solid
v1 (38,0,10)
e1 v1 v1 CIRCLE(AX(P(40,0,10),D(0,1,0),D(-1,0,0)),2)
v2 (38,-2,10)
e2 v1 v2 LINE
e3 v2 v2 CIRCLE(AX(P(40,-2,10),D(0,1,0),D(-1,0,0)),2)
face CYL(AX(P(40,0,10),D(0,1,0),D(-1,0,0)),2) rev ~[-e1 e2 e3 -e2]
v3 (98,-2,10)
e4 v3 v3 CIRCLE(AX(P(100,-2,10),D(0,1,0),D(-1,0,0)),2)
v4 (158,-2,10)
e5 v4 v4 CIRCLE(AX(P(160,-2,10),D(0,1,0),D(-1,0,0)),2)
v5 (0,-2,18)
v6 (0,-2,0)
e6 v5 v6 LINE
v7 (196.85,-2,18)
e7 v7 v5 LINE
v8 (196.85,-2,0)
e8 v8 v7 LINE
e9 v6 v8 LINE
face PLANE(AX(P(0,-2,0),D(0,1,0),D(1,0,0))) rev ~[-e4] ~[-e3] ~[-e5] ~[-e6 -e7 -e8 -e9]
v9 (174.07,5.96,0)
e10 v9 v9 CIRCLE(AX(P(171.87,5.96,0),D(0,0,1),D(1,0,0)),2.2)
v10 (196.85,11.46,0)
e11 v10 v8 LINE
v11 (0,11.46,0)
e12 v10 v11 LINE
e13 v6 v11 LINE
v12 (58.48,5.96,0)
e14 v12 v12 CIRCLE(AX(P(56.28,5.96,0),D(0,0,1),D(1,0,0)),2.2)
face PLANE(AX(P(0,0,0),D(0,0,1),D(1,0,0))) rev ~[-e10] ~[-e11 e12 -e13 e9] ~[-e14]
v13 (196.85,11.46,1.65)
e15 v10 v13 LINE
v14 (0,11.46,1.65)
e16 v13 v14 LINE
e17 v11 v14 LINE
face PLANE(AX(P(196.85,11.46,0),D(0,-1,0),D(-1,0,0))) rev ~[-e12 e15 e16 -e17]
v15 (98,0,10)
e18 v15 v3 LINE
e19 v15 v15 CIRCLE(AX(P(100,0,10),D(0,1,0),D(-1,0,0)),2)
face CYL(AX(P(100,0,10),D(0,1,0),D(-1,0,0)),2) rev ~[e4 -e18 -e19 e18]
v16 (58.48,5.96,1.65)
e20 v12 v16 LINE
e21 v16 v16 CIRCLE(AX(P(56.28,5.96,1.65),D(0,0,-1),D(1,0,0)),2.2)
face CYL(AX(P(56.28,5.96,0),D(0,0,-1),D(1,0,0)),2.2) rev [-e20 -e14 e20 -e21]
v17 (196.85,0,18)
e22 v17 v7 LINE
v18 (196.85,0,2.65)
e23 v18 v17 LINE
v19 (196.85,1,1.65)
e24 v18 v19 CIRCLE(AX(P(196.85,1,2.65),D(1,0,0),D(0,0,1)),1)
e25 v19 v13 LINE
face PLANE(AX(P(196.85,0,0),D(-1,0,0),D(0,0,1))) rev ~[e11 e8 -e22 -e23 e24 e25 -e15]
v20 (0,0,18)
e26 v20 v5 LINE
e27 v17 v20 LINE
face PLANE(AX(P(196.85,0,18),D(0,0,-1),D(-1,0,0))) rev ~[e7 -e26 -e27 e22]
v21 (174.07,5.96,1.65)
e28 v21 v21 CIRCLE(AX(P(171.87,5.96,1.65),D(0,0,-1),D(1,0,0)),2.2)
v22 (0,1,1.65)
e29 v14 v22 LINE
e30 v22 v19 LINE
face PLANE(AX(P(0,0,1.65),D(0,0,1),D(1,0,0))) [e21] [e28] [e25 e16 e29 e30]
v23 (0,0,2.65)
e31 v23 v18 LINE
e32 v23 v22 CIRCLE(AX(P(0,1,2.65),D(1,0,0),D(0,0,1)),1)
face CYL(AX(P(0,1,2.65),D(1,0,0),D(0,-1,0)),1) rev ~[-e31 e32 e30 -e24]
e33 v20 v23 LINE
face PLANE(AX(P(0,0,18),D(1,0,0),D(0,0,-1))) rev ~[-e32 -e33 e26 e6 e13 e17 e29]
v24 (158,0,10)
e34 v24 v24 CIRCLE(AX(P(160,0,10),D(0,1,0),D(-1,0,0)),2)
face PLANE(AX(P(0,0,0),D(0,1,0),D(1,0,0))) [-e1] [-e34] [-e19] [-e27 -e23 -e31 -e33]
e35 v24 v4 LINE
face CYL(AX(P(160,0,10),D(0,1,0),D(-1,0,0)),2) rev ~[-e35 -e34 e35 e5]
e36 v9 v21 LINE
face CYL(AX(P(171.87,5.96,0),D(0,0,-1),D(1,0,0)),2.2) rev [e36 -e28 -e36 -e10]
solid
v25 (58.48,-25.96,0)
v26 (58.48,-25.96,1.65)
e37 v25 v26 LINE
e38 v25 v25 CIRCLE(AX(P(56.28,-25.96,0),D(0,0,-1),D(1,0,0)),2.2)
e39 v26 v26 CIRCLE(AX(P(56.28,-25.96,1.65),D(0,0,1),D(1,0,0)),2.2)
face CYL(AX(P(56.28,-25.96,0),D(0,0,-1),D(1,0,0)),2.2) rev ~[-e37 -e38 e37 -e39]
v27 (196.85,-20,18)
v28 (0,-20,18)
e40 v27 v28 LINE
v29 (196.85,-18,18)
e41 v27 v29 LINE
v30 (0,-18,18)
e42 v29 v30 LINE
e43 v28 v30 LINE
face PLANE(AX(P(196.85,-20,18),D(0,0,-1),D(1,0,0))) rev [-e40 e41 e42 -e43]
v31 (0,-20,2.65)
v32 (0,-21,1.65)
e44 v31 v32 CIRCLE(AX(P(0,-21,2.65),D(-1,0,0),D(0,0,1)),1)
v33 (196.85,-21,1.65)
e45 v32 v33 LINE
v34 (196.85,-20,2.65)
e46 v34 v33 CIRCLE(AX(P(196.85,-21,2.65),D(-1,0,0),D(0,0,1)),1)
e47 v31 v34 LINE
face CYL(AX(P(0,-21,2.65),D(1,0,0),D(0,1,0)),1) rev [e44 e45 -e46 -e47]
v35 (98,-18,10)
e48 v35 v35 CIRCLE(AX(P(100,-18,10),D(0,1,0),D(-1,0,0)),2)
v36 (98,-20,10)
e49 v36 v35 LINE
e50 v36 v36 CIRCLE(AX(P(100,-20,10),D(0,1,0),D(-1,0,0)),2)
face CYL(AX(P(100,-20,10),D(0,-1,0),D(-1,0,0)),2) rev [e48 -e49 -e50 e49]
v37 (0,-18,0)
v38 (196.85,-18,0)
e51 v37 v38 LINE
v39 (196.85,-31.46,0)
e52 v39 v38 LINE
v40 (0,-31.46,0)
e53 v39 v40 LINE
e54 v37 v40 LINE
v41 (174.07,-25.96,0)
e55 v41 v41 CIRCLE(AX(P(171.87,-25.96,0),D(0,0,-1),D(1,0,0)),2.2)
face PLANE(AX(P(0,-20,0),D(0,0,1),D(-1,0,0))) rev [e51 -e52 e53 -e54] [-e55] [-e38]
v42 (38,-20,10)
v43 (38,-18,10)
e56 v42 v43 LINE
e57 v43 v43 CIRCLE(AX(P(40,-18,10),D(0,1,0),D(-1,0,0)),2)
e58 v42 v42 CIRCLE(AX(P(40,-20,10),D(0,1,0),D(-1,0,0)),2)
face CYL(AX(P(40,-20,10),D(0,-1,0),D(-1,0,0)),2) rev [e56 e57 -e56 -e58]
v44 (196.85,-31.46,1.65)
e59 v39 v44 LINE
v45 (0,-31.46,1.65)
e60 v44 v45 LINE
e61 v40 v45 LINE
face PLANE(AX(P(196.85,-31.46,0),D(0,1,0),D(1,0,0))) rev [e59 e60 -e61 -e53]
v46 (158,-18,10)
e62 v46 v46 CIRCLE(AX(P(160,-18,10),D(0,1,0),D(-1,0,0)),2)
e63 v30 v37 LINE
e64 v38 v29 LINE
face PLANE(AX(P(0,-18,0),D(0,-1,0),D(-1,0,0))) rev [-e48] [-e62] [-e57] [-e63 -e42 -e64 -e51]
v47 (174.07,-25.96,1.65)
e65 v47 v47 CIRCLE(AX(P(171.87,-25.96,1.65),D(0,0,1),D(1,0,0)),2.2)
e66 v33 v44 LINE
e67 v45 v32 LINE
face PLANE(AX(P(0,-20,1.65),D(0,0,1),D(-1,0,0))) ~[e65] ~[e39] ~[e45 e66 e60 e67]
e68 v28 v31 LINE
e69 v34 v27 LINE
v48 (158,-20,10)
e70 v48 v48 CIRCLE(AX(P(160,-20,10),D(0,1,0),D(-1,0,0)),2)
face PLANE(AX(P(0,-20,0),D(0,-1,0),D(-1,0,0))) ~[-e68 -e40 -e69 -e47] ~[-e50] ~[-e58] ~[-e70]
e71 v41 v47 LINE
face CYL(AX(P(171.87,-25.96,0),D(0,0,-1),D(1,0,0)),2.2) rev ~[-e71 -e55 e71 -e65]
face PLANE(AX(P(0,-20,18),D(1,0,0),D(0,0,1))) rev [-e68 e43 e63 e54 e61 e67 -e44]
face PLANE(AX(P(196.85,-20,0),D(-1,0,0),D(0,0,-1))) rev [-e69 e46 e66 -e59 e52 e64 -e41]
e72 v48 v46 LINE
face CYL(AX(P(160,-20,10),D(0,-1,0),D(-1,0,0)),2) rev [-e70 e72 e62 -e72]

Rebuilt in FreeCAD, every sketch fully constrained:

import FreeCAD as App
import Part
import Sketcher
from FreeCAD import Vector
Q = App.Units.Quantity


def edges_at(feature, points):
    """Names of the edges that pass closest to the given points."""
    edges = feature.Shape.Edges
    near = lambda p: min(range(len(edges)), key=lambda i: edges[i].distToShape(Part.Vertex(*p))[0])
    return sorted({f"Edge{near(p) + 1}" for p in points})


def add_polygon(sketch, points):
    """Adds a closed chain of lines whose ends are joined by coincident constraints."""
    first, n = sketch.GeometryCount, len(points)
    for a, b in zip(points, points[1:] + points[:1]):
        sketch.addGeometry(Part.LineSegment(App.Vector(*a, 0), App.Vector(*b, 0)), False)
    for i in range(n):
        sketch.addConstraint(Sketcher.Constraint("Coincident", first + i, 2, first + (i + 1) % n, 1))

doc = App.newDocument("Part")
body = doc.addObject("PartDesign::Body", "Body")
body.AllowCompound = True

# Sketch on XY plane
sketch1 = body.newObject("Sketcher::SketchObject", "Sketch")
sketch1.AttachmentSupport = (doc.getObject("XY_Plane"), [""])
sketch1.MapMode = "FlatFace"
add_polygon(sketch1, [(0, 11), (0, 0), (197, 0), (197, 11)])  # lines 0-3
sketch1.addConstraint([
    Sketcher.Constraint("Vertical", 0),
    Sketcher.Constraint("Horizontal", 1),
    Sketcher.Constraint("Vertical", 2),
    Sketcher.Constraint("Horizontal", 3),
    Sketcher.Constraint("Coincident", 0, 2, -1, 1),
    Sketcher.Constraint("DistanceX", 1, 1, 1, 2, Q("196.85 mm")),
    Sketcher.Constraint("DistanceY", 0, 2, 0, 1, Q("11.46 mm")),
])
pad1 = body.newObject("PartDesign::Pad", "Pad")
pad1.Profile = sketch1
pad1.Length = 1.65

# Sketch on XY plane
sketch2 = body.newObject("Sketcher::SketchObject", "Sketch001")
sketch2.AttachmentSupport = (doc.getObject("XY_Plane"), [""])
sketch2.MapMode = "FlatFace"
sketch2.addGeometry([
    Part.Circle(Vector(56.3, 6, 0), Vector(0, 0, 1), 2.2),
    Part.Circle(Vector(171.9, 6, 0), Vector(0, 0, 1), 2.2),
], False)
sketch2.addConstraint([
    Sketcher.Constraint("Equal", 0, 1),
    Sketcher.Constraint("Horizontal", 0, 3, 1, 3),
    Sketcher.Constraint("Diameter", 0, Q("4.4 mm")),
    Sketcher.Constraint("DistanceX", -1, 1, 0, 3, Q("56.28 mm")),
    Sketcher.Constraint("DistanceY", -1, 1, 0, 3, Q("5.96 mm")),
    Sketcher.Constraint("DistanceX", -1, 1, 1, 3, Q("171.87 mm")),
])
pocket1 = body.newObject("PartDesign::Pocket", "Pocket")
pocket1.Profile = sketch2
pocket1.Type = "ThroughAll"
pocket1.Reversed = True

# Sketch on XZ plane
sketch3 = body.newObject("Sketcher::SketchObject", "Sketch002")
sketch3.AttachmentSupport = (doc.getObject("XZ_Plane"), [""])
sketch3.MapMode = "FlatFace"
add_polygon(sketch3, [(197, 0), (0, 0), (0, 18), (197, 18)])  # lines 0-3
sketch3.addConstraint([
    Sketcher.Constraint("Horizontal", 0),
    Sketcher.Constraint("Vertical", 1),
    Sketcher.Constraint("Horizontal", 2),
    Sketcher.Constraint("Vertical", 3),
    Sketcher.Constraint("Coincident", 0, 2, -1, 1),
    Sketcher.Constraint("DistanceY", 1, 1, 1, 2, Q("18 mm")),
    Sketcher.Constraint("DistanceX", 0, 2, 0, 1, Q("196.85 mm")),
])
pad2 = body.newObject("PartDesign::Pad", "Pad001")
pad2.Profile = sketch3
pad2.Length = 2
doc.recompute()

fillet = body.newObject("PartDesign::Fillet", "Fillet")
fillet.Base = (pad2, edges_at(pad2, [(98.425, 0, 1.65)]))
fillet.Radius = 1

# Sketch on XZ plane
sketch4 = body.newObject("Sketcher::SketchObject", "Sketch003")
sketch4.AttachmentSupport = (doc.getObject("XZ_Plane"), [""])
sketch4.MapMode = "FlatFace"
sketch4.addGeometry([
    Part.Circle(Vector(160, 10, 0), Vector(0, 0, 1), 2),
    Part.Circle(Vector(100, 10, 0), Vector(0, 0, 1), 2),
    Part.Circle(Vector(40, 10, 0), Vector(0, 0, 1), 2),
], False)
sketch4.addConstraint([
    Sketcher.Constraint("Equal", 0, 1),
    Sketcher.Constraint("Equal", 1, 2),
    Sketcher.Constraint("Horizontal", 0, 3, 1, 3),
    Sketcher.Constraint("Horizontal", 1, 3, 2, 3),
    Sketcher.Constraint("Diameter", 0, Q("4 mm")),
    Sketcher.Constraint("DistanceX", -1, 1, 0, 3, Q("160 mm")),
    Sketcher.Constraint("DistanceY", -1, 1, 0, 3, Q("10 mm")),
    Sketcher.Constraint("DistanceX", -1, 1, 1, 3, Q("100 mm")),
    Sketcher.Constraint("DistanceX", -1, 1, 2, 3, Q("40 mm")),
])
pocket2 = body.newObject("PartDesign::Pocket", "Pocket001")
pocket2.Profile = sketch4
pocket2.Length = 5
pocket2.Reversed = True
doc.recompute()

datumplane = body.newObject("PartDesign::Plane", "DatumPlane")
datumplane.AttachmentSupport = (doc.getObject("XZ_Plane"), [""])
datumplane.MapMode = "FlatFace"
datumplane.AttachmentOffset = App.Placement(Vector(0, 0, 10), App.Rotation())
mirrored = body.newObject("PartDesign::Mirrored", "Mirrored")
mirrored.TransformMode = "Transform body"
mirrored.MirrorPlane = (datumplane, [""])
body.Tip = mirrored

doc.recompute()
